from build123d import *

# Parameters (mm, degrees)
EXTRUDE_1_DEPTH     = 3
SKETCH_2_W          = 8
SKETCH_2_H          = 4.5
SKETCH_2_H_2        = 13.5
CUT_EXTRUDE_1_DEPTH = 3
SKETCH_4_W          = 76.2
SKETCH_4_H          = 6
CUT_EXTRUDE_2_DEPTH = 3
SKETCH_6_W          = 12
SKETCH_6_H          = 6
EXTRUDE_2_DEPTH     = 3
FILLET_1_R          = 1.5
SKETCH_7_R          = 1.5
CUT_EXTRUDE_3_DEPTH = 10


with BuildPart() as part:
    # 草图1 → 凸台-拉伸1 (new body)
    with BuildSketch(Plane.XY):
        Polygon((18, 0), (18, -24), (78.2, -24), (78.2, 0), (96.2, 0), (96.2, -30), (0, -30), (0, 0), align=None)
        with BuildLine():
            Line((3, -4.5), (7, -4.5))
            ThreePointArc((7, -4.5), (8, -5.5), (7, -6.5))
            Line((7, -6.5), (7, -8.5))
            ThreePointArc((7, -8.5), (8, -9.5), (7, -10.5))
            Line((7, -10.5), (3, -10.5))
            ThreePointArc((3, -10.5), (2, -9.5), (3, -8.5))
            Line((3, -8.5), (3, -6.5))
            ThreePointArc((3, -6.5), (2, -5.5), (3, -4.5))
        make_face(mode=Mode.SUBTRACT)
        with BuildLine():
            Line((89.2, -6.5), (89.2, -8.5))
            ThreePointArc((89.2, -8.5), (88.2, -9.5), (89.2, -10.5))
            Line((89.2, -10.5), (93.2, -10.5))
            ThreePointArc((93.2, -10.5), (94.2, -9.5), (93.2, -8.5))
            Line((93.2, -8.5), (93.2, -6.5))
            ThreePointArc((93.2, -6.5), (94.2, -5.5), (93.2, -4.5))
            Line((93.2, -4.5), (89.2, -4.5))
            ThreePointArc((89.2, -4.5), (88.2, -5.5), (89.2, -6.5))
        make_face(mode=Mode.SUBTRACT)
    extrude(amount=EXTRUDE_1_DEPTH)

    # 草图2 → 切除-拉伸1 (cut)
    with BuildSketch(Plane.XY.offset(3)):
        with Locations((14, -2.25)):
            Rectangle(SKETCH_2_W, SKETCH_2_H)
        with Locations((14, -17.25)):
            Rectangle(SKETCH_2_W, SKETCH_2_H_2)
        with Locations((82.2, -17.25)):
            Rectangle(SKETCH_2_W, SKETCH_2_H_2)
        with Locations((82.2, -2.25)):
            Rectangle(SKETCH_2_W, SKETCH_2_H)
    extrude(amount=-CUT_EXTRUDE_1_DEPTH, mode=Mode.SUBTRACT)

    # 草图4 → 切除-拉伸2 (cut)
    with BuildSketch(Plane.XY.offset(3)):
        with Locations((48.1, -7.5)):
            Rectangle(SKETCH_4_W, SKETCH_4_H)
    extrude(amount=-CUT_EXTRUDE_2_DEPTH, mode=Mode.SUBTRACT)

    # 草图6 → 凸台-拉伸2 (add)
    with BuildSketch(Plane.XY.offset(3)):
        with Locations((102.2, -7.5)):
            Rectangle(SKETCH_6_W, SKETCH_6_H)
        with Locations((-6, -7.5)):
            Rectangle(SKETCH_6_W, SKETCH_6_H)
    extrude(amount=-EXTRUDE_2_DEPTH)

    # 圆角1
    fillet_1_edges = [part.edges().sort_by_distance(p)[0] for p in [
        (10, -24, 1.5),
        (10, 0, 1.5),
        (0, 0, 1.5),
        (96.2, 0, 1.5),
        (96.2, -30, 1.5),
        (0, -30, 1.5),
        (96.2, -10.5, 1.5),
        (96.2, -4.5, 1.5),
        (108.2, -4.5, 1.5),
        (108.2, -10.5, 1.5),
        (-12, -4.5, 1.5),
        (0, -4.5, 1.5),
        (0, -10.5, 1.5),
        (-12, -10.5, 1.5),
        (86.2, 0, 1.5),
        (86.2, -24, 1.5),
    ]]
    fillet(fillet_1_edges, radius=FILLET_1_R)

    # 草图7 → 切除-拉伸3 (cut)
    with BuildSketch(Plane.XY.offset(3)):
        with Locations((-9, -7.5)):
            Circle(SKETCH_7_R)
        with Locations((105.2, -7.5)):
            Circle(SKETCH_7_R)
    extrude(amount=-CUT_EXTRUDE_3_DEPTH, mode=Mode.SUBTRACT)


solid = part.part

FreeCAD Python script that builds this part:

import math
import FreeCAD as App
import Part
import Sketcher

V = App.Vector


def edges_at(feature, points):
    """Names of the edges that pass closest to the given points."""
    edges = feature.Shape.Edges
    near = lambda p: min(range(len(edges)), key=lambda i: edges[i].distToShape(Part.Vertex(*p))[0])
    return sorted({f"Edge{near(p) + 1}" for p in points})

doc = App.newDocument("Part")
body = doc.addObject("PartDesign::Body", "Body")

sketch1 = doc.addObject("Sketcher::SketchObject", "Sketch")
body.addObject(sketch1)
sketch1.AttachmentSupport = (doc.XY_Plane, [""])
sketch1.MapMode = "FlatFace"
sketch1.addGeometry([
    Part.LineSegment(V(18, -24, 0), V(18, 0, 0)),
    Part.LineSegment(V(18, 0, 0), V(0, 0, 0)),
    Part.LineSegment(V(0, 0, 0), V(0, -30, 0)),
    Part.LineSegment(V(0, -30, 0), V(96.2, -30, 0)),
    Part.LineSegment(V(96.2, -30, 0), V(96.2, 0, 0)),
    Part.LineSegment(V(96.2, 0, 0), V(78.2, 0, 0)),
    Part.LineSegment(V(78.2, 0, 0), V(78.2, -24, 0)),
    Part.LineSegment(V(78.2, -24, 0), V(18, -24, 0)),
    Part.ArcOfCircle(Part.Circle(V(89.2, -5.5, 0), V(0, 0, 1), 1), math.radians(90), math.radians(270)),
    Part.LineSegment(V(89.2, -4.5, 0), V(93.2, -4.5, 0)),
    Part.ArcOfCircle(Part.Circle(V(93.2, -5.5, 0), V(0, 0, 1), 1), math.radians(-90), math.radians(90)),
    Part.LineSegment(V(93.2, -6.5, 0), V(93.2, -8.5, 0)),
    Part.ArcOfCircle(Part.Circle(V(93.2, -9.5, 0), V(0, 0, 1), 1), math.radians(-90), math.radians(90)),
    Part.LineSegment(V(93.2, -10.5, 0), V(89.2, -10.5, 0)),
    Part.ArcOfCircle(Part.Circle(V(89.2, -9.5, 0), V(0, 0, 1), 1), math.radians(90), math.radians(270)),
    Part.LineSegment(V(89.2, -8.5, 0), V(89.2, -6.5, 0)),
    Part.LineSegment(V(3, -4.5, 0), V(7, -4.5, 0)),
    Part.ArcOfCircle(Part.Circle(V(7, -5.5, 0), V(0, 0, 1), 1), math.radians(-90), math.radians(90)),
    Part.LineSegment(V(7, -6.5, 0), V(7, -8.5, 0)),
    Part.ArcOfCircle(Part.Circle(V(7, -9.5, 0), V(0, 0, 1), 1), math.radians(-90), math.radians(90)),
    Part.LineSegment(V(7, -10.5, 0), V(3, -10.5, 0)),
    Part.ArcOfCircle(Part.Circle(V(3, -9.5, 0), V(0, 0, 1), 1), math.radians(90), math.radians(270)),
    Part.LineSegment(V(3, -8.5, 0), V(3, -6.5, 0)),
    Part.ArcOfCircle(Part.Circle(V(3, -5.5, 0), V(0, 0, 1), 1), math.radians(90), math.radians(270)),
], False)
sketch1.addConstraint([
    Sketcher.Constraint("Coincident", 0, 2, 1, 1),
    Sketcher.Constraint("Coincident", 1, 2, 2, 1),
    Sketcher.Constraint("Coincident", 2, 2, 3, 1),
    Sketcher.Constraint("Coincident", 3, 2, 4, 1),
    Sketcher.Constraint("Coincident", 4, 2, 5, 1),
    Sketcher.Constraint("Coincident", 5, 2, 6, 1),
    Sketcher.Constraint("Coincident", 6, 2, 7, 1),
    Sketcher.Constraint("Coincident", 7, 2, 0, 1),
    Sketcher.Constraint("Tangent", 8, 1, 9, 1),
    Sketcher.Constraint("Tangent", 9, 2, 10, 2),
    Sketcher.Constraint("Coincident", 10, 1, 11, 1),
    Sketcher.Constraint("Coincident", 11, 2, 12, 2),
    Sketcher.Constraint("Tangent", 12, 1, 13, 1),
    Sketcher.Constraint("Tangent", 13, 2, 14, 2),
    Sketcher.Constraint("Coincident", 14, 1, 15, 1),
    Sketcher.Constraint("Coincident", 15, 2, 8, 2),
    Sketcher.Constraint("Tangent", 16, 2, 17, 2),
    Sketcher.Constraint("Coincident", 17, 1, 18, 1),
    Sketcher.Constraint("Coincident", 18, 2, 19, 2),
    Sketcher.Constraint("Tangent", 19, 1, 20, 1),
    Sketcher.Constraint("Tangent", 20, 2, 21, 2),
    Sketcher.Constraint("Coincident", 21, 1, 22, 1),
    Sketcher.Constraint("Coincident", 22, 2, 23, 2),
    Sketcher.Constraint("Tangent", 23, 1, 16, 1),
    Sketcher.Constraint("Vertical", 0),
    Sketcher.Constraint("Horizontal", 1),
    Sketcher.Constraint("Vertical", 2),
    Sketcher.Constraint("Horizontal", 3),
    Sketcher.Constraint("Vertical", 4),
    Sketcher.Constraint("Horizontal", 5),
    Sketcher.Constraint("Vertical", 6),
    Sketcher.Constraint("Horizontal", 7),
    Sketcher.Constraint("Horizontal", 9),
    Sketcher.Constraint("Vertical", 11),
    Sketcher.Constraint("Horizontal", 13),
    Sketcher.Constraint("Vertical", 15),
    Sketcher.Constraint("Horizontal", 16),
    Sketcher.Constraint("Vertical", 18),
    Sketcher.Constraint("Horizontal", 20),
    Sketcher.Constraint("Vertical", 22),
    Sketcher.Constraint("Coincident", 1, 2, -1, 1),
    Sketcher.Constraint("Equal", 8, 10),
    Sketcher.Constraint("Equal", 10, 12),
    Sketcher.Constraint("Equal", 12, 14),
    Sketcher.Constraint("Equal", 14, 17),
    Sketcher.Constraint("Equal", 17, 19),
    Sketcher.Constraint("Equal", 19, 21),
    Sketcher.Constraint("Equal", 21, 23),
    Sketcher.Constraint("PointOnObject", 4, 2, -1),
    Sketcher.Constraint("Horizontal", 10, 3, 17, 3),
    Sketcher.Constraint("Horizontal", 14, 3, 19, 3),
    Sketcher.Constraint("Vertical", 10, 3, 12, 3),
    Sketcher.Constraint("Vertical", 8, 3, 14, 3),
    Sketcher.Constraint("Vertical", 17, 3, 19, 3),
    Sketcher.Constraint("Vertical", 21, 3, 23, 3),
    Sketcher.Constraint("Vertical", 9, 2, 10, 1),
    Sketcher.Constraint("Vertical", 13, 2, 14, 1),
    Sketcher.Constraint("Vertical", 16, 2, 17, 1),
    Sketcher.Constraint("Vertical", 20, 2, 21, 1),
    Sketcher.Constraint("Equal", 1, 5),
    Sketcher.Constraint("Equal", 13, 16),
    Sketcher.Constraint("Radius", 8, 1.0),
    Sketcher.Constraint("DistanceX", 1, 2, 1, 1, 18.0),
    Sketcher.Constraint("DistanceX", 9, 1, 9, 2, 4.0),
    Sketcher.Constraint("DistanceY", 0, 1, 0, 2, 24.0),
    Sketcher.Constraint("DistanceY", 2, 2, 2, 1, 30.0),
    Sketcher.Constraint("DistanceY", 11, 2, 11, 1, 2.0),
    Sketcher.Constraint("DistanceX", 3, 1, 3, 2, 96.2),
    Sketcher.Constraint("DistanceX", -1, 1, 17, 3, 7.0),
    Sketcher.Constraint("DistanceX", 12, 3, 3, 2, 3.0),
    Sketcher.Constraint("DistanceY", 8, 3, -1, 1, 5.5),
])
pad1 = doc.addObject("PartDesign::Pad", "Pad")
body.addObject(pad1)
pad1.Profile = sketch1
pad1.Length = 3

sketch2 = doc.addObject("Sketcher::SketchObject", "Sketch001")
body.addObject(sketch2)
sketch2.AttachmentSupport = (doc.XY_Plane, [""])
sketch2.MapMode = "FlatFace"
sketch2.AttachmentOffset = App.Placement(V(0, 0, 3), App.Rotation())
sketch2.addGeometry([
    Part.LineSegment(V(10, 0, 0), V(10, -4.5, 0)),
    Part.LineSegment(V(10, -4.5, 0), V(18, -4.5, 0)),
    Part.LineSegment(V(18, -4.5, 0), V(18, 0, 0)),
    Part.LineSegment(V(18, 0, 0), V(10, 0, 0)),
    Part.LineSegment(V(10, -10.5, 0), V(10, -24, 0)),
    Part.LineSegment(V(10, -24, 0), V(18, -24, 0)),
    Part.LineSegment(V(18, -24, 0), V(18, -10.5, 0)),
    Part.LineSegment(V(18, -10.5, 0), V(10, -10.5, 0)),
    Part.LineSegment(V(78.2, -10.5, 0), V(78.2, -24, 0)),
    Part.LineSegment(V(78.2, -24, 0), V(86.2, -24, 0)),
    Part.LineSegment(V(86.2, -24, 0), V(86.2, -10.5, 0)),
    Part.LineSegment(V(86.2, -10.5, 0), V(78.2, -10.5, 0)),
    Part.LineSegment(V(78.2, 0, 0), V(78.2, -4.5, 0)),
    Part.LineSegment(V(78.2, -4.5, 0), V(86.2, -4.5, 0)),
    Part.LineSegment(V(86.2, -4.5, 0), V(86.2, 0, 0)),
    Part.LineSegment(V(86.2, 0, 0), V(78.2, 0, 0)),
], False)
sketch2.addConstraint([
    Sketcher.Constraint("Coincident", 0, 2, 1, 1),
    Sketcher.Constraint("Coincident", 1, 2, 2, 1),
    Sketcher.Constraint("Coincident", 2, 2, 3, 1),
    Sketcher.Constraint("Coincident", 3, 2, 0, 1),
    Sketcher.Constraint("Coincident", 4, 2, 5, 1),
    Sketcher.Constraint("Coincident", 5, 2, 6, 1),
    Sketcher.Constraint("Coincident", 6, 2, 7, 1),
    Sketcher.Constraint("Coincident", 7, 2, 4, 1),
    Sketcher.Constraint("Coincident", 8, 2, 9, 1),
    Sketcher.Constraint("Coincident", 9, 2, 10, 1),
    Sketcher.Constraint("Coincident", 10, 2, 11, 1),
    Sketcher.Constraint("Coincident", 11, 2, 8, 1),
    Sketcher.Constraint("Coincident", 12, 2, 13, 1),
    Sketcher.Constraint("Coincident", 13, 2, 14, 1),
    Sketcher.Constraint("Coincident", 14, 2, 15, 1),
    Sketcher.Constraint("Coincident", 15, 2, 12, 1),
    Sketcher.Constraint("Vertical", 0),
    Sketcher.Constraint("Horizontal", 1),
    Sketcher.Constraint("Vertical", 2),
    Sketcher.Constraint("Horizontal", 3),
    Sketcher.Constraint("Vertical", 4),
    Sketcher.Constraint("Horizontal", 5),
    Sketcher.Constraint("Vertical", 6),
    Sketcher.Constraint("Horizontal", 7),
    Sketcher.Constraint("Vertical", 8),
    Sketcher.Constraint("Horizontal", 9),
    Sketcher.Constraint("Vertical", 10),
    Sketcher.Constraint("Horizontal", 11),
    Sketcher.Constraint("Vertical", 12),
    Sketcher.Constraint("Horizontal", 13),
    Sketcher.Constraint("Vertical", 14),
    Sketcher.Constraint("Horizontal", 15),
    Sketcher.Constraint("PointOnObject", 2, 2, -1),
    Sketcher.Constraint("PointOnObject", 14, 2, -1),
    Sketcher.Constraint("Horizontal", 5, 2, 8, 2),
    Sketcher.Constraint("Horizontal", 7, 2, 10, 2),
    Sketcher.Constraint("Horizontal", 1, 2, 12, 2),
    Sketcher.Constraint("Vertical", 3, 2, 4, 2),
    Sketcher.Constraint("Vertical", 2, 2, 5, 2),
    Sketcher.Constraint("Vertical", 11, 2, 12, 2),
    Sketcher.Constraint("Vertical", 10, 2, 13, 2),
    Sketcher.Constraint("Equal", 7, 9),
    Sketcher.Constraint("DistanceX", 1, 1, 1, 2, 8.0),
    Sketcher.Constraint("DistanceY", 0, 2, 0, 1, 4.5),
    Sketcher.Constraint("DistanceY", 4, 2, 4, 1, 13.5),
    Sketcher.Constraint("DistanceX", -1, 1, 0, 2, 10.0),
    Sketcher.Constraint("DistanceY", 4, 2, -1, 1, 24.0),
    Sketcher.Constraint("DistanceX", -1, 1, 8, 2, 78.2),
])
pocket1 = doc.addObject("PartDesign::Pocket", "Pocket")
body.addObject(pocket1)
pocket1.Profile = sketch2
pocket1.Length = 3

sketch3 = doc.addObject("Sketcher::SketchObject", "Sketch002")
body.addObject(sketch3)
sketch3.AttachmentSupport = (doc.XY_Plane, [""])
sketch3.MapMode = "FlatFace"
sketch3.AttachmentOffset = App.Placement(V(0, 0, 3), App.Rotation())
sketch3.addGeometry([
    Part.LineSegment(V(10, -4, 0), V(10, -10, 0)),
    Part.LineSegment(V(10, -10, 0), V(86, -10, 0)),
    Part.LineSegment(V(86, -10, 0), V(86, -4, 0)),
    Part.LineSegment(V(86, -4, 0), V(10, -4, 0)),
], False)
sketch3.addConstraint([
    Sketcher.Constraint("Coincident", 0, 2, 1, 1),
    Sketcher.Constraint("Coincident", 1, 2, 2, 1),
    Sketcher.Constraint("Coincident", 2, 2, 3, 1),
    Sketcher.Constraint("Coincident", 3, 2, 0, 1),
    Sketcher.Constraint("Vertical", 0),
    Sketcher.Constraint("Horizontal", 1),
    Sketcher.Constraint("Vertical", 2),
    Sketcher.Constraint("Horizontal", 3),
    Sketcher.Constraint("DistanceY", 0, 2, 0, 1, 6.0),
    Sketcher.Constraint("DistanceX", 1, 1, 1, 2, 76.2),
    Sketcher.Constraint("DistanceX", -1, 1, 0, 2, 10.0),
    Sketcher.Constraint("DistanceY", 0, 2, -1, 1, 10.5),
])
pocket2 = doc.addObject("PartDesign::Pocket", "Pocket001")
body.addObject(pocket2)
pocket2.Profile = sketch3
pocket2.Length = 3

sketch4 = doc.addObject("Sketcher::SketchObject", "Sketch003")
body.addObject(sketch4)
sketch4.AttachmentSupport = (doc.XY_Plane, [""])
sketch4.MapMode = "FlatFace"
sketch4.AttachmentOffset = App.Placement(V(0, 0, 3), App.Rotation())
sketch4.addGeometry([
    Part.LineSegment(V(96, -4, 0), V(96, -10, 0)),
    Part.LineSegment(V(96, -10, 0), V(108, -10, 0)),
    Part.LineSegment(V(108, -10, 0), V(108, -4, 0)),
    Part.LineSegment(V(108, -4, 0), V(96, -4, 0)),
    Part.LineSegment(V(-12, -4, 0), V(-12, -10, 0)),
    Part.LineSegment(V(-12, -10, 0), V(0, -10, 0)),
    Part.LineSegment(V(0, -10, 0), V(0, -4, 0)),
    Part.LineSegment(V(0, -4, 0), V(-12, -4, 0)),
], False)
sketch4.addConstraint([
    Sketcher.Constraint("Coincident", 0, 2, 1, 1),
    Sketcher.Constraint("Coincident", 1, 2, 2, 1),
    Sketcher.Constraint("Coincident", 2, 2, 3, 1),
    Sketcher.Constraint("Coincident", 3, 2, 0, 1),
    Sketcher.Constraint("Coincident", 4, 2, 5, 1),
    Sketcher.Constraint("Coincident", 5, 2, 6, 1),
    Sketcher.Constraint("Coincident", 6, 2, 7, 1),
    Sketcher.Constraint("Coincident", 7, 2, 4, 1),
    Sketcher.Constraint("Vertical", 0),
    Sketcher.Constraint("Horizontal", 1),
    Sketcher.Constraint("Vertical", 2),
    Sketcher.Constraint("Horizontal", 3),
    Sketcher.Constraint("Vertical", 4),
    Sketcher.Constraint("Horizontal", 5),
    Sketcher.Constraint("Vertical", 6),
    Sketcher.Constraint("Horizontal", 7),
    Sketcher.Constraint("PointOnObject", 5, 2, -2),
    Sketcher.Constraint("Horizontal", 1, 2, 4, 2),
    Sketcher.Constraint("Horizontal", 3, 2, 6, 2),
    Sketcher.Constraint("Equal", 3, 5),
    Sketcher.Constraint("DistanceX", 1, 1, 1, 2, 12.0),
    Sketcher.Constraint("DistanceY", 0, 2, 0, 1, 6.0),
    Sketcher.Constraint("DistanceX", -1, 1, 0, 2, 96.2),
    Sketcher.Constraint("DistanceY", 0, 2, -1, 1, 10.5),
])
pad2 = doc.addObject("PartDesign::Pad", "Pad001")
body.addObject(pad2)
pad2.Profile = sketch4
pad2.Length = 3
pad2.Reversed = True
doc.recompute()

fillet = doc.addObject("PartDesign::Fillet", "Fillet")
body.addObject(fillet)
fillet.Base = (pad2, edges_at(pad2, [
    (10, -24, 1.5),
    (10, 0, 1.5),
    (0, 0, 1.5),
    (96.2, 0, 1.5),
    (96.2, -30, 1.5),
    (0, -30, 1.5),
    (96.2, -10.5, 1.5),
    (96.2, -4.5, 1.5),
    (108.2, -4.5, 1.5),
    (108.2, -10.5, 1.5),
    (-12, -4.5, 1.5),
    (0, -4.5, 1.5),
    (0, -10.5, 1.5),
    (-12, -10.5, 1.5),
    (86.2, 0, 1.5),
    (86.2, -24, 1.5),
]))
fillet.Radius = 1.5

sketch5 = doc.addObject("Sketcher::SketchObject", "Sketch004")
body.addObject(sketch5)
sketch5.AttachmentSupport = (doc.XY_Plane, [""])
sketch5.MapMode = "FlatFace"
sketch5.AttachmentOffset = App.Placement(V(0, 0, 3), App.Rotation())
sketch5.addGeometry([
    Part.Circle(V(-9, -7.5, 0), V(0, 0, 1), 1.5),
    Part.Circle(V(105.2, -7.5, 0), V(0, 0, 1), 1.5),
], False)
sketch5.addConstraint([
    Sketcher.Constraint("Equal", 0, 1),
    Sketcher.Constraint("Horizontal", 0, 3, 1, 3),
    Sketcher.Constraint("Diameter", 0, 3.0),
    Sketcher.Constraint("DistanceX", 0, 3, -1, 1, 9.0),
    Sketcher.Constraint("DistanceY", 0, 3, -1, 1, 7.5),
    Sketcher.Constraint("DistanceX", -1, 1, 1, 3, 105.2),
])
pocket3 = doc.addObject("PartDesign::Pocket", "Pocket002")
body.addObject(pocket3)
pocket3.Profile = sketch5
pocket3.Length = 10

doc.recompute()
